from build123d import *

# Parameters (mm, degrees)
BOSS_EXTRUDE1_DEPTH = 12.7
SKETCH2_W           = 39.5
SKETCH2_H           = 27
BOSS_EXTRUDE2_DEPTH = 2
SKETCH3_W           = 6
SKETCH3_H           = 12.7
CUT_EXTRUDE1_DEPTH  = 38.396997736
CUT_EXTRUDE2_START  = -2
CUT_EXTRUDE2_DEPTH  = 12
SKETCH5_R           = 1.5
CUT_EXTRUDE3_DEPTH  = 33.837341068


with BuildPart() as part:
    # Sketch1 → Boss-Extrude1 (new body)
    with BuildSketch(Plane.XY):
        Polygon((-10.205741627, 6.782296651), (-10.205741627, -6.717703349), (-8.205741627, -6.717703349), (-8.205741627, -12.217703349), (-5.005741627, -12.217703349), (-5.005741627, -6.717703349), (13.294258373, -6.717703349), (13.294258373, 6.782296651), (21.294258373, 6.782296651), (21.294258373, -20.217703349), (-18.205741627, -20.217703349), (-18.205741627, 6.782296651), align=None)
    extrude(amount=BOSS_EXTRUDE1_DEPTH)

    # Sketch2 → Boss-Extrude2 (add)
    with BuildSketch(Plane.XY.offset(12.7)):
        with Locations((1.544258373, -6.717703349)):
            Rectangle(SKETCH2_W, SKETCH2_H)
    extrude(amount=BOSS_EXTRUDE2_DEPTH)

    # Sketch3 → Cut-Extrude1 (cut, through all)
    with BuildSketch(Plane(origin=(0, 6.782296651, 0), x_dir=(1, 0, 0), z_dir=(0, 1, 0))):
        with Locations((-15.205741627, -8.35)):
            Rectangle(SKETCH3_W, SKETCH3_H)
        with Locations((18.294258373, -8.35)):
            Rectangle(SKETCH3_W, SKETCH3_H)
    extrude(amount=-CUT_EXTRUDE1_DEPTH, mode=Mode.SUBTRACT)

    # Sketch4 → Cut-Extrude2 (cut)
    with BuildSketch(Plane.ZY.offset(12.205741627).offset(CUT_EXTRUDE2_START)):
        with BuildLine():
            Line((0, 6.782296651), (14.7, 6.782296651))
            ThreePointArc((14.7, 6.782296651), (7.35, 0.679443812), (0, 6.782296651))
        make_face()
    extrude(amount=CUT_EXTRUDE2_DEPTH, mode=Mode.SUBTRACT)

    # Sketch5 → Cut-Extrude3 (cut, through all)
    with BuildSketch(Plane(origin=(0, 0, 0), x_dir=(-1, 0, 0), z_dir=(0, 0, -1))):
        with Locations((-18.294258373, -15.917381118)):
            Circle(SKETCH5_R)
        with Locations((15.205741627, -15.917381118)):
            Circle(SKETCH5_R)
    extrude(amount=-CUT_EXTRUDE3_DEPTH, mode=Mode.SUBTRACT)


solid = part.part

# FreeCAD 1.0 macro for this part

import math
import FreeCAD as App
import Part
import Sketcher


def add_polygon(sketch, points):
    """Adds a closed chain of lines whose ends are joined by coincident constraints."""
    first, n = sketch.GeometryCount, len(points)
    for a, b in zip(points, points[1:] + points[:1]):
        sketch.addGeometry(Part.LineSegment(App.Vector(*a, 0), App.Vector(*b, 0)), False)
    for i in range(n):
        sketch.addConstraint(Sketcher.Constraint("Coincident", first + i, 2, first + (i + 1) % n, 1))

doc = App.newDocument("Part")
body = doc.addObject("PartDesign::Body", "Body")

# Sketch on XY plane
sketch1 = body.newObject("Sketcher::SketchObject", "Sketch")
sketch1.AttachmentSupport = (doc.getObject("XY_Plane"), [""])
sketch1.MapMode = "FlatFace"
add_polygon(sketch1, [(-10.2, -6.7), (-10.2, 6.8), (-18.2, 6.8), (-18.2, -20.2), (21.3, -20.2), (21.3, 6.8), (13.3, 6.8), (13.3, -6.7), (-5, -6.7), (-5, -12.2), (-8.2, -12.2), (-8.2, -6.7)])  # lines 0-11
sketch1.addConstraint([
    Sketcher.Constraint("Vertical", 0),
    Sketcher.Constraint("Horizontal", 1),
    Sketcher.Constraint("Vertical", 2),
    Sketcher.Constraint("Horizontal", 3),
    Sketcher.Constraint("Vertical", 4),
    Sketcher.Constraint("Horizontal", 5),
    Sketcher.Constraint("Vertical", 6),
    Sketcher.Constraint("Horizontal", 7),
    Sketcher.Constraint("Vertical", 8),
    Sketcher.Constraint("Horizontal", 9),
    Sketcher.Constraint("Vertical", 10),
    Sketcher.Constraint("Horizontal", 11),
    Sketcher.Constraint("Horizontal", 1, 2, 4, 2),
    Sketcher.Constraint("Horizontal", 7, 2, 10, 2),
    Sketcher.Constraint("Equal", 1, 5),
    Sketcher.Constraint("DistanceX", 1, 2, 1, 1, 8.0),
    Sketcher.Constraint("DistanceX", 11, 2, 11, 1, 2.0),
    Sketcher.Constraint("DistanceY", 2, 2, 2, 1, 27.0),
    Sketcher.Constraint("DistanceX", 3, 1, 3, 2, 39.5),
    Sketcher.Constraint("DistanceX", 7, 2, 7, 1, 18.3),
    Sketcher.Constraint("DistanceY", 0, 1, 0, 2, 13.5),
    Sketcher.Constraint("DistanceY", 8, 2, 8, 1, 5.5),
    Sketcher.Constraint("DistanceX", 0, 2, -1, 1, 10.205742),
    Sketcher.Constraint("DistanceY", -1, 1, 0, 2, 6.782297),
])
pad1 = body.newObject("PartDesign::Pad", "Pad")
pad1.Profile = sketch1
pad1.Length = 12.7

# Sketch on XY plane
sketch2 = body.newObject("Sketcher::SketchObject", "Sketch001")
sketch2.AttachmentSupport = (doc.getObject("XY_Plane"), [""])
sketch2.MapMode = "FlatFace"
sketch2.AttachmentOffset = App.Placement(App.Vector(0, 0, 12.7), App.Rotation())
add_polygon(sketch2, [(-18, 7), (-18, -20), (21, -20), (21, 7)])  # lines 0-3
sketch2.addConstraint([
    Sketcher.Constraint("Vertical", 0),
    Sketcher.Constraint("Horizontal", 1),
    Sketcher.Constraint("Vertical", 2),
    Sketcher.Constraint("Horizontal", 3),
    Sketcher.Constraint("DistanceY", 0, 2, 0, 1, 27.0),
    Sketcher.Constraint("DistanceX", 1, 1, 1, 2, 39.5),
    Sketcher.Constraint("DistanceX", 0, 2, -1, 1, 18.205742),
    Sketcher.Constraint("DistanceY", 0, 2, -1, 1, 20.217703),
])
pad2 = body.newObject("PartDesign::Pad", "Pad001")
pad2.Profile = sketch2
pad2.Length = 2

# Sketch on XZ plane
sketch3 = body.newObject("Sketcher::SketchObject", "Sketch002")
sketch3.AttachmentSupport = (doc.getObject("XZ_Plane"), [""])
sketch3.MapMode = "FlatFace"
sketch3.AttachmentOffset = App.Placement(App.Vector(0, 0, -6.782297), App.Rotation())
add_polygon(sketch3, [(-18, 2), (-18, 15), (-12, 15), (-12, 2)])  # lines 0-3
add_polygon(sketch3, [(15, 2), (15, 15), (21, 15), (21, 2)])  # lines 4-7
sketch3.addConstraint([
    Sketcher.Constraint("Vertical", 0),
    Sketcher.Constraint("Horizontal", 1),
    Sketcher.Constraint("Vertical", 2),
    Sketcher.Constraint("Horizontal", 3),
    Sketcher.Constraint("Vertical", 4),
    Sketcher.Constraint("Horizontal", 5),
    Sketcher.Constraint("Vertical", 6),
    Sketcher.Constraint("Horizontal", 7),
    Sketcher.Constraint("Horizontal", 1, 2, 4, 2),
    Sketcher.Constraint("Horizontal", 3, 2, 6, 2),
    Sketcher.Constraint("Equal", 3, 5),
    Sketcher.Constraint("DistanceX", 1, 1, 1, 2, 6.0),
    Sketcher.Constraint("DistanceY", 0, 1, 0, 2, 12.7),
    Sketcher.Constraint("DistanceY", -1, 1, 2, 2, 2.0),
    Sketcher.Constraint("DistanceX", 1, 2, 4, 2, 27.5),
    Sketcher.Constraint("DistanceX", 0, 2, -1, 1, 18.205742),
])
pocket1 = body.newObject("PartDesign::Pocket", "Pocket")
pocket1.Profile = sketch3
pocket1.Type = "ThroughAll"
pocket1.Reversed = True

# Sketch on YZ plane
sketch4 = body.newObject("Sketcher::SketchObject", "Sketch003")
sketch4.AttachmentSupport = (doc.getObject("YZ_Plane"), [""])
sketch4.MapMode = "FlatFace"
sketch4.AttachmentOffset = App.Placement(App.Vector(0, 0, -10.205742), App.Rotation())
sketch4.addGeometry([
    Part.LineSegment(App.Vector(7, 15, 0), App.Vector(7, 0, 0)),
    Part.ArcOfCircle(Part.Circle(App.Vector(8, 7, 0), App.Vector(0, 0, 1), 7), math.radians(101), math.radians(259)),
], False)
sketch4.addConstraint([
    Sketcher.Constraint("Coincident", 0, 1, 1, 1),
    Sketcher.Constraint("Coincident", 1, 2, 0, 2),
    Sketcher.Constraint("Vertical", 0),
    Sketcher.Constraint("PointOnObject", 1, 2, -1),
    Sketcher.Constraint("DistanceY", 0, 2, 0, 1, 14.7),
    Sketcher.Constraint("Radius", 1, 7.47743),
    Sketcher.Constraint("DistanceX", -1, 1, 1, 3, 8.156874),
])
pocket2 = body.newObject("PartDesign::Pocket", "Pocket001")
pocket2.Profile = sketch4
pocket2.Length = 12

# Sketch on XY plane
sketch5 = body.newObject("Sketcher::SketchObject", "Sketch004")
sketch5.AttachmentSupport = (doc.getObject("XY_Plane"), [""])
sketch5.MapMode = "FlatFace"
sketch5.addGeometry([
    Part.Circle(App.Vector(18.3, -15.9, 0), App.Vector(0, 0, 1), 1.5),
    Part.Circle(App.Vector(-15.2, -15.9, 0), App.Vector(0, 0, 1), 1.5),
], False)
sketch5.addConstraint([
    Sketcher.Constraint("Equal", 0, 1),
    Sketcher.Constraint("Horizontal", 0, 3, 1, 3),
    Sketcher.Constraint("Diameter", 0, 3.0),
    Sketcher.Constraint("DistanceX", 1, 3, 0, 3, 33.5),
    Sketcher.Constraint("DistanceX", -1, 1, 0, 3, 18.294258),
    Sketcher.Constraint("DistanceY", 0, 3, -1, 1, 15.917381),
])
pocket3 = body.newObject("PartDesign::Pocket", "Pocket002")
pocket3.Profile = sketch5
pocket3.Type = "ThroughAll"
pocket3.Reversed = True

doc.recompute()
